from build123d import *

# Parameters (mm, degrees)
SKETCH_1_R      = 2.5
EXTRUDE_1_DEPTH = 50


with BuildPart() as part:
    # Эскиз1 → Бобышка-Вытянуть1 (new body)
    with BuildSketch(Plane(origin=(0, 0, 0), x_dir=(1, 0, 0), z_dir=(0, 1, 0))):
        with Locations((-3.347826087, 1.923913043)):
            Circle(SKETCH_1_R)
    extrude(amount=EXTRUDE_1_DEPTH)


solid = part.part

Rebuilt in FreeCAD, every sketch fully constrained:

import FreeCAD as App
import Part
import Sketcher
from FreeCAD import Vector

doc = App.newDocument("Part")
body = doc.addObject("PartDesign::Body", "Body")

# Sketch on XZ plane
sketch1 = doc.addObject("Sketcher::SketchObject", "Sketch")
body.addObject(sketch1)
sketch1.AttachmentSupport = (doc.XZ_Plane, [""])
sketch1.MapMode = "FlatFace"
sketch1.addGeometry(Part.Circle(Vector(-3.3, -1.9, 0), Vector(0, 0, 1), 2.5), False)
sketch1.addConstraint(Sketcher.Constraint("Diameter", 0, 5.0))
sketch1.addConstraint(Sketcher.Constraint("DistanceX", 0, 3, -1, 1, 3.347826))
sketch1.addConstraint(Sketcher.Constraint("DistanceY", 0, 3, -1, 1, 1.923913))
pad1 = doc.addObject("PartDesign::Pad", "Pad")
body.addObject(pad1)
pad1.Profile = sketch1
pad1.Length = 50
pad1.Reversed = True

doc.recompute()
